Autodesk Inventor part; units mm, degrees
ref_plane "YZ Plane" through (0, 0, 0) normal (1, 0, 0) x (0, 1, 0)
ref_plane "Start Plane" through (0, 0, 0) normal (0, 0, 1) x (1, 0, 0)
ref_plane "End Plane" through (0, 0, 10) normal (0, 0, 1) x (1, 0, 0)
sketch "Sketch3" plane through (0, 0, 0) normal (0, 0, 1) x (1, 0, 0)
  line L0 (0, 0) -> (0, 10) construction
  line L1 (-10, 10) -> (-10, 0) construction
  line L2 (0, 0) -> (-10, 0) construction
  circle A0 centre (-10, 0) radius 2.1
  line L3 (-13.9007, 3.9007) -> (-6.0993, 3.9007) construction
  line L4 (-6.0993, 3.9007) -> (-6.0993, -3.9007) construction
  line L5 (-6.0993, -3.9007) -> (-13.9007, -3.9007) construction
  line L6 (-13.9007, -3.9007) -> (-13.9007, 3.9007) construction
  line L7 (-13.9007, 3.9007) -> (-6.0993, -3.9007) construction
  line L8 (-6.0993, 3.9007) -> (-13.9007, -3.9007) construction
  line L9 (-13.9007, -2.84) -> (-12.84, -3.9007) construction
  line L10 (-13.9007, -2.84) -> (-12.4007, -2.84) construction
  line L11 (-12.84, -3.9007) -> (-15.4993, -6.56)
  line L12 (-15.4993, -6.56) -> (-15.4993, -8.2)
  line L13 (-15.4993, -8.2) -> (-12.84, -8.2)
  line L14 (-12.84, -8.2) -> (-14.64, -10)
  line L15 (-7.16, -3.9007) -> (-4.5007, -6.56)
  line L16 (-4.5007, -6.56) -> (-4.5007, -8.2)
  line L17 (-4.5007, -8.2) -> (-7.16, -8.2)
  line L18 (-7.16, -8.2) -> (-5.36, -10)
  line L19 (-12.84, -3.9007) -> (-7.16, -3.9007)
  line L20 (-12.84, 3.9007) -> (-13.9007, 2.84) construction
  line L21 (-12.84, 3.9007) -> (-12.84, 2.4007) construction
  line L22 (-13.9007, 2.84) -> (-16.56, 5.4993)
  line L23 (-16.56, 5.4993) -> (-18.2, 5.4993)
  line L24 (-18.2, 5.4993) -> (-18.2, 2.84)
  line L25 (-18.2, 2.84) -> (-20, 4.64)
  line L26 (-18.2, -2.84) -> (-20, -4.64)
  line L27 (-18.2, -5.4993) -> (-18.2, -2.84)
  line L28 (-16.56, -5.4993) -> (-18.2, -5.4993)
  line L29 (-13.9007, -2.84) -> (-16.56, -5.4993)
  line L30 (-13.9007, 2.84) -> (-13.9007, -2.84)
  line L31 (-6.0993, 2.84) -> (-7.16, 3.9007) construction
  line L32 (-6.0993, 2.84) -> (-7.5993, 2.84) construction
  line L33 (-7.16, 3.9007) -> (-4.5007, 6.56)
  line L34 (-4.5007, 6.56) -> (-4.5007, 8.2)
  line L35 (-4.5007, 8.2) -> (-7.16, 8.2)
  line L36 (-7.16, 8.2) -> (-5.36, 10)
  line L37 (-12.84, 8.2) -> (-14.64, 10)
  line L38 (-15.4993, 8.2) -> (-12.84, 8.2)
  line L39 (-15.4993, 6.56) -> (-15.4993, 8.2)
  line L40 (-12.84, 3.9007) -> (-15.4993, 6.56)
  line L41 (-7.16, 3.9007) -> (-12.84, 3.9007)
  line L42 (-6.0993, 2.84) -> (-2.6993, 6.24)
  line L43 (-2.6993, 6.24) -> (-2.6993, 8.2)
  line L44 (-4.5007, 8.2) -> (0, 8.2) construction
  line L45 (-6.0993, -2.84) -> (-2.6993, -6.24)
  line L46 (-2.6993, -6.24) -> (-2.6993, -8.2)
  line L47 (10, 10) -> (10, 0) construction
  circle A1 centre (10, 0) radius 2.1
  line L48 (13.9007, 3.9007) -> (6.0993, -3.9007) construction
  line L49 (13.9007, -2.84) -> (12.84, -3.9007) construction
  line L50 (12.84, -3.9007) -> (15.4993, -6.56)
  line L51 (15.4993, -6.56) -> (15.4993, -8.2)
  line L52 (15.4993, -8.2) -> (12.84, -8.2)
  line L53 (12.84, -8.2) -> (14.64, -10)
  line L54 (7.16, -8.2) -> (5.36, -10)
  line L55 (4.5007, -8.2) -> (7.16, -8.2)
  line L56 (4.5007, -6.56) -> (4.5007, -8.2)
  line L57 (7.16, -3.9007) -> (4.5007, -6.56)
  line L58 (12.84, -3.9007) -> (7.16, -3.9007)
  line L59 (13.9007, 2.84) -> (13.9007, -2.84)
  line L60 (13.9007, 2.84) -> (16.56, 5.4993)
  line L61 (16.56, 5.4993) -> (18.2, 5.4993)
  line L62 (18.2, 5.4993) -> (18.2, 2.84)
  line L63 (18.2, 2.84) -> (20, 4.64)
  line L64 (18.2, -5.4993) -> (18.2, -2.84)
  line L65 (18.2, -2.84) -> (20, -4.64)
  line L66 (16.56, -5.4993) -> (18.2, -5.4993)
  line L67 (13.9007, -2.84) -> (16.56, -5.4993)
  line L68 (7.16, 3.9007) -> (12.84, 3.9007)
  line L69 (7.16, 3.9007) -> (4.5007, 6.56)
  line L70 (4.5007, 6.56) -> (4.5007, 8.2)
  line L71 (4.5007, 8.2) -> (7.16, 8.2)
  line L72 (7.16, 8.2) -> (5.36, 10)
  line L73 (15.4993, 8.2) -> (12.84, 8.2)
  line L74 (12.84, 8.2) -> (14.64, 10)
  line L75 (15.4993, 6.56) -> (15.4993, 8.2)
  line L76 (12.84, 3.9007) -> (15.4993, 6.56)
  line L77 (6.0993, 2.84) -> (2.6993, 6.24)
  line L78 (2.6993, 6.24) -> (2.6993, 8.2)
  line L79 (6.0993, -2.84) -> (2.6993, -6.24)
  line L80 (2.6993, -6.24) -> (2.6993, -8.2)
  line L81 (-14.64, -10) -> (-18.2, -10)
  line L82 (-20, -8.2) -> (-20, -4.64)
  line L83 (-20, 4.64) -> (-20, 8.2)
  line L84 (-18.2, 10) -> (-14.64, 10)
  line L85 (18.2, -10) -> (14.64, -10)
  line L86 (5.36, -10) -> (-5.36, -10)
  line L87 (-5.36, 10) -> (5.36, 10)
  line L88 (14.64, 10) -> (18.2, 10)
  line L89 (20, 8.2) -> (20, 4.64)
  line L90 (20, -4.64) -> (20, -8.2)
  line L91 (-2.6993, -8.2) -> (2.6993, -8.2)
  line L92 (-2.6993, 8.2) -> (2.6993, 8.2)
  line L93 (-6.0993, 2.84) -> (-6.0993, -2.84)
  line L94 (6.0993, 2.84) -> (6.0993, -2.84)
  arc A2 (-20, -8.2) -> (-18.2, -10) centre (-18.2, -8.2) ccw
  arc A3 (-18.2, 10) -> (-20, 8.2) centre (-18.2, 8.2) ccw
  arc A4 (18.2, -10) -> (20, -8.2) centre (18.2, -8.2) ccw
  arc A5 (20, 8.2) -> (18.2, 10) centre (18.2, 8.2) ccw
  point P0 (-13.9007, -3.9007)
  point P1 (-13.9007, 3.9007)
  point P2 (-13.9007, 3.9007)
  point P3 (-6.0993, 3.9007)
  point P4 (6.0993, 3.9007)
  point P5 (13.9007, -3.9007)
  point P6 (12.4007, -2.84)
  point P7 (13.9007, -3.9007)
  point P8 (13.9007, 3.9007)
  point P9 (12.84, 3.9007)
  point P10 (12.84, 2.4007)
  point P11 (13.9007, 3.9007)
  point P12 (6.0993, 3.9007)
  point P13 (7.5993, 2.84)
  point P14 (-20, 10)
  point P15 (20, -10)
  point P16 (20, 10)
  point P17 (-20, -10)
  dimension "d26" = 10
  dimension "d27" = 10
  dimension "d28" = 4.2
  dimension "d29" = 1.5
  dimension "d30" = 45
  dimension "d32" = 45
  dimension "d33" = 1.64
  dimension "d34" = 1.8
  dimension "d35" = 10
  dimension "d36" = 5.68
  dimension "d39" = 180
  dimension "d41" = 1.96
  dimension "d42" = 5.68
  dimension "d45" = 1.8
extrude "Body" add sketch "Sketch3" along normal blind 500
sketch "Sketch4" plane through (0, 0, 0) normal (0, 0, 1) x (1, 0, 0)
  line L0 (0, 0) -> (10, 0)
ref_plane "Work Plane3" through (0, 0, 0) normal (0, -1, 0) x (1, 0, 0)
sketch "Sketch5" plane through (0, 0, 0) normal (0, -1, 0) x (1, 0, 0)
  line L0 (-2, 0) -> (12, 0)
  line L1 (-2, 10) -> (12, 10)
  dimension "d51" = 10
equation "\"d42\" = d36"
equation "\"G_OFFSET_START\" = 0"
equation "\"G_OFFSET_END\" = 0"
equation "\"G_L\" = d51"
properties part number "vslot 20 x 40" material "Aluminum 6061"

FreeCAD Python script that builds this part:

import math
import FreeCAD as App
import Part
import Sketcher
Q = App.Units.Quantity

doc = App.newDocument("Part")
body = doc.addObject("PartDesign::Body", "Body")

# Sketch on XY plane
sketch1 = body.newObject("Sketcher::SketchObject", "Sketch")
sketch1.AttachmentSupport = (doc.getObject("XY_Plane"), [""])
sketch1.MapMode = "FlatFace"
sketch1.addGeometry(Part.LineSegment(App.Vector(-15.5, -6.6, 0), App.Vector(-12.8, -3.9, 0)), False)
sketch1.addGeometry(Part.LineSegment(App.Vector(-12.8, -3.9, 0), App.Vector(-7.2, -3.9, 0)), False)
sketch1.addGeometry(Part.LineSegment(App.Vector(-7.2, -3.9, 0), App.Vector(-4.5, -6.6, 0)), False)
sketch1.addGeometry(Part.LineSegment(App.Vector(-4.5, -6.6, 0), App.Vector(-4.5, -8.2, 0)), False)
sketch1.addGeometry(Part.LineSegment(App.Vector(-4.5, -8.2, 0), App.Vector(-7.2, -8.2, 0)), False)
sketch1.addGeometry(Part.LineSegment(App.Vector(-7.2, -8.2, 0), App.Vector(-5.4, -10, 0)), False)
sketch1.addGeometry(Part.LineSegment(App.Vector(-5.4, -10, 0), App.Vector(5.4, -10, 0)), False)
sketch1.addGeometry(Part.LineSegment(App.Vector(5.4, -10, 0), App.Vector(7.2, -8.2, 0)), False)
sketch1.addGeometry(Part.LineSegment(App.Vector(7.2, -8.2, 0), App.Vector(4.5, -8.2, 0)), False)
sketch1.addGeometry(Part.LineSegment(App.Vector(4.5, -8.2, 0), App.Vector(4.5, -6.6, 0)), False)
sketch1.addGeometry(Part.LineSegment(App.Vector(4.5, -6.6, 0), App.Vector(7.2, -3.9, 0)), False)
sketch1.addGeometry(Part.LineSegment(App.Vector(7.2, -3.9, 0), App.Vector(12.8, -3.9, 0)), False)
sketch1.addGeometry(Part.LineSegment(App.Vector(12.8, -3.9, 0), App.Vector(15.5, -6.6, 0)), False)
sketch1.addGeometry(Part.LineSegment(App.Vector(15.5, -6.6, 0), App.Vector(15.5, -8.2, 0)), False)
sketch1.addGeometry(Part.LineSegment(App.Vector(15.5, -8.2, 0), App.Vector(12.8, -8.2, 0)), False)
sketch1.addGeometry(Part.LineSegment(App.Vector(12.8, -8.2, 0), App.Vector(14.6, -10, 0)), False)
sketch1.addGeometry(Part.LineSegment(App.Vector(14.6, -10, 0), App.Vector(18.2, -10, 0)), False)
sketch1.addGeometry(Part.ArcOfCircle(Part.Circle(App.Vector(18.2, -8.2, 0), App.Vector(0, 0, 1), 1.8), math.radians(-90), math.radians(0)), False)
sketch1.addGeometry(Part.LineSegment(App.Vector(20, -8.2, 0), App.Vector(20, -4.6, 0)), False)
sketch1.addGeometry(Part.LineSegment(App.Vector(20, -4.6, 0), App.Vector(18.2, -2.8, 0)), False)
sketch1.addGeometry(Part.LineSegment(App.Vector(18.2, -2.8, 0), App.Vector(18.2, -5.5, 0)), False)
sketch1.addGeometry(Part.LineSegment(App.Vector(18.2, -5.5, 0), App.Vector(16.6, -5.5, 0)), False)
sketch1.addGeometry(Part.LineSegment(App.Vector(16.6, -5.5, 0), App.Vector(13.9, -2.8, 0)), False)
sketch1.addGeometry(Part.LineSegment(App.Vector(13.9, -2.8, 0), App.Vector(13.9, 2.8, 0)), False)
sketch1.addGeometry(Part.LineSegment(App.Vector(13.9, 2.8, 0), App.Vector(16.6, 5.5, 0)), False)
sketch1.addGeometry(Part.LineSegment(App.Vector(16.6, 5.5, 0), App.Vector(18.2, 5.5, 0)), False)
sketch1.addGeometry(Part.LineSegment(App.Vector(18.2, 5.5, 0), App.Vector(18.2, 2.8, 0)), False)
sketch1.addGeometry(Part.LineSegment(App.Vector(18.2, 2.8, 0), App.Vector(20, 4.6, 0)), False)
sketch1.addGeometry(Part.LineSegment(App.Vector(20, 4.6, 0), App.Vector(20, 8.2, 0)), False)
sketch1.addGeometry(Part.ArcOfCircle(Part.Circle(App.Vector(18.2, 8.2, 0), App.Vector(0, 0, 1), 1.8), math.radians(0), math.radians(90)), False)
sketch1.addGeometry(Part.LineSegment(App.Vector(18.2, 10, 0), App.Vector(14.6, 10, 0)), False)
sketch1.addGeometry(Part.LineSegment(App.Vector(14.6, 10, 0), App.Vector(12.8, 8.2, 0)), False)
sketch1.addGeometry(Part.LineSegment(App.Vector(12.8, 8.2, 0), App.Vector(15.5, 8.2, 0)), False)
sketch1.addGeometry(Part.LineSegment(App.Vector(15.5, 8.2, 0), App.Vector(15.5, 6.6, 0)), False)
sketch1.addGeometry(Part.LineSegment(App.Vector(15.5, 6.6, 0), App.Vector(12.8, 3.9, 0)), False)
sketch1.addGeometry(Part.LineSegment(App.Vector(12.8, 3.9, 0), App.Vector(7.2, 3.9, 0)), False)
sketch1.addGeometry(Part.LineSegment(App.Vector(7.2, 3.9, 0), App.Vector(4.5, 6.6, 0)), False)
sketch1.addGeometry(Part.LineSegment(App.Vector(4.5, 6.6, 0), App.Vector(4.5, 8.2, 0)), False)
sketch1.addGeometry(Part.LineSegment(App.Vector(4.5, 8.2, 0), App.Vector(7.2, 8.2, 0)), False)
sketch1.addGeometry(Part.LineSegment(App.Vector(7.2, 8.2, 0), App.Vector(5.4, 10, 0)), False)
sketch1.addGeometry(Part.LineSegment(App.Vector(5.4, 10, 0), App.Vector(-5.4, 10, 0)), False)
sketch1.addGeometry(Part.LineSegment(App.Vector(-5.4, 10, 0), App.Vector(-7.2, 8.2, 0)), False)
sketch1.addGeometry(Part.LineSegment(App.Vector(-7.2, 8.2, 0), App.Vector(-4.5, 8.2, 0)), False)
sketch1.addGeometry(Part.LineSegment(App.Vector(-4.5, 8.2, 0), App.Vector(-4.5, 6.6, 0)), False)
sketch1.addGeometry(Part.LineSegment(App.Vector(-4.5, 6.6, 0), App.Vector(-7.2, 3.9, 0)), False)
sketch1.addGeometry(Part.LineSegment(App.Vector(-7.2, 3.9, 0), App.Vector(-12.8, 3.9, 0)), False)
sketch1.addGeometry(Part.LineSegment(App.Vector(-12.8, 3.9, 0), App.Vector(-15.5, 6.6, 0)), False)
sketch1.addGeometry(Part.LineSegment(App.Vector(-15.5, 6.6, 0), App.Vector(-15.5, 8.2, 0)), False)
sketch1.addGeometry(Part.LineSegment(App.Vector(-15.5, 8.2, 0), App.Vector(-12.8, 8.2, 0)), False)
sketch1.addGeometry(Part.LineSegment(App.Vector(-12.8, 8.2, 0), App.Vector(-14.6, 10, 0)), False)
sketch1.addGeometry(Part.LineSegment(App.Vector(-14.6, 10, 0), App.Vector(-18.2, 10, 0)), False)
sketch1.addGeometry(Part.ArcOfCircle(Part.Circle(App.Vector(-18.2, 8.2, 0), App.Vector(0, 0, 1), 1.8), math.radians(90), math.radians(180)), False)
sketch1.addGeometry(Part.LineSegment(App.Vector(-20, 8.2, 0), App.Vector(-20, 4.6, 0)), False)
sketch1.addGeometry(Part.LineSegment(App.Vector(-20, 4.6, 0), App.Vector(-18.2, 2.8, 0)), False)
sketch1.addGeometry(Part.LineSegment(App.Vector(-18.2, 2.8, 0), App.Vector(-18.2, 5.5, 0)), False)
sketch1.addGeometry(Part.LineSegment(App.Vector(-18.2, 5.5, 0), App.Vector(-16.6, 5.5, 0)), False)
sketch1.addGeometry(Part.LineSegment(App.Vector(-16.6, 5.5, 0), App.Vector(-13.9, 2.8, 0)), False)
sketch1.addGeometry(Part.LineSegment(App.Vector(-13.9, 2.8, 0), App.Vector(-13.9, -2.8, 0)), False)
sketch1.addGeometry(Part.LineSegment(App.Vector(-13.9, -2.8, 0), App.Vector(-16.6, -5.5, 0)), False)
sketch1.addGeometry(Part.LineSegment(App.Vector(-16.6, -5.5, 0), App.Vector(-18.2, -5.5, 0)), False)
sketch1.addGeometry(Part.LineSegment(App.Vector(-18.2, -5.5, 0), App.Vector(-18.2, -2.8, 0)), False)
sketch1.addGeometry(Part.LineSegment(App.Vector(-18.2, -2.8, 0), App.Vector(-20, -4.6, 0)), False)
sketch1.addGeometry(Part.LineSegment(App.Vector(-20, -4.6, 0), App.Vector(-20, -8.2, 0)), False)
sketch1.addGeometry(Part.ArcOfCircle(Part.Circle(App.Vector(-18.2, -8.2, 0), App.Vector(0, 0, 1), 1.8), math.radians(180), math.radians(270)), False)
sketch1.addGeometry(Part.LineSegment(App.Vector(-18.2, -10, 0), App.Vector(-14.6, -10, 0)), False)
sketch1.addGeometry(Part.LineSegment(App.Vector(-14.6, -10, 0), App.Vector(-12.8, -8.2, 0)), False)
sketch1.addGeometry(Part.LineSegment(App.Vector(-12.8, -8.2, 0), App.Vector(-15.5, -8.2, 0)), False)
sketch1.addGeometry(Part.LineSegment(App.Vector(-15.5, -8.2, 0), App.Vector(-15.5, -6.6, 0)), False)
sketch1.addGeometry(Part.Circle(App.Vector(-10, 0, 0), App.Vector(0, 0, 1), 2.1), False)
sketch1.addGeometry(Part.LineSegment(App.Vector(-6.1, -2.8, 0), App.Vector(-6.1, 2.8, 0)), False)
sketch1.addGeometry(Part.LineSegment(App.Vector(-6.1, 2.8, 0), App.Vector(-2.7, 6.2, 0)), False)
sketch1.addGeometry(Part.LineSegment(App.Vector(-2.7, 6.2, 0), App.Vector(-2.7, 8.2, 0)), False)
sketch1.addGeometry(Part.LineSegment(App.Vector(-2.7, 8.2, 0), App.Vector(2.7, 8.2, 0)), False)
sketch1.addGeometry(Part.LineSegment(App.Vector(2.7, 8.2, 0), App.Vector(2.7, 6.2, 0)), False)
sketch1.addGeometry(Part.LineSegment(App.Vector(2.7, 6.2, 0), App.Vector(6.1, 2.8, 0)), False)
sketch1.addGeometry(Part.LineSegment(App.Vector(6.1, 2.8, 0), App.Vector(6.1, -2.8, 0)), False)
sketch1.addGeometry(Part.LineSegment(App.Vector(6.1, -2.8, 0), App.Vector(2.7, -6.2, 0)), False)
sketch1.addGeometry(Part.LineSegment(App.Vector(2.7, -6.2, 0), App.Vector(2.7, -8.2, 0)), False)
sketch1.addGeometry(Part.LineSegment(App.Vector(2.7, -8.2, 0), App.Vector(-2.7, -8.2, 0)), False)
sketch1.addGeometry(Part.LineSegment(App.Vector(-2.7, -8.2, 0), App.Vector(-2.7, -6.2, 0)), False)
sketch1.addGeometry(Part.LineSegment(App.Vector(-2.7, -6.2, 0), App.Vector(-6.1, -2.8, 0)), False)
sketch1.addGeometry(Part.Circle(App.Vector(10, 0, 0), App.Vector(0, 0, 1), 2.1), False)
sketch1.addConstraint(Sketcher.Constraint("Coincident", 0, 2, 1, 1))
sketch1.addConstraint(Sketcher.Constraint("Coincident", 1, 2, 2, 1))
sketch1.addConstraint(Sketcher.Constraint("Coincident", 2, 2, 3, 1))
sketch1.addConstraint(Sketcher.Constraint("Coincident", 3, 2, 4, 1))
sketch1.addConstraint(Sketcher.Constraint("Coincident", 4, 2, 5, 1))
sketch1.addConstraint(Sketcher.Constraint("Coincident", 5, 2, 6, 1))
sketch1.addConstraint(Sketcher.Constraint("Coincident", 6, 2, 7, 1))
sketch1.addConstraint(Sketcher.Constraint("Coincident", 7, 2, 8, 1))
sketch1.addConstraint(Sketcher.Constraint("Coincident", 8, 2, 9, 1))
sketch1.addConstraint(Sketcher.Constraint("Coincident", 9, 2, 10, 1))
sketch1.addConstraint(Sketcher.Constraint("Coincident", 10, 2, 11, 1))
sketch1.addConstraint(Sketcher.Constraint("Coincident", 11, 2, 12, 1))
sketch1.addConstraint(Sketcher.Constraint("Coincident", 12, 2, 13, 1))
sketch1.addConstraint(Sketcher.Constraint("Coincident", 13, 2, 14, 1))
sketch1.addConstraint(Sketcher.Constraint("Coincident", 14, 2, 15, 1))
sketch1.addConstraint(Sketcher.Constraint("Coincident", 15, 2, 16, 1))
sketch1.addConstraint(Sketcher.Constraint("Tangent", 16, 2, 17, 1))
sketch1.addConstraint(Sketcher.Constraint("Tangent", 17, 2, 18, 1))
sketch1.addConstraint(Sketcher.Constraint("Coincident", 18, 2, 19, 1))
sketch1.addConstraint(Sketcher.Constraint("Coincident", 19, 2, 20, 1))
sketch1.addConstraint(Sketcher.Constraint("Coincident", 20, 2, 21, 1))
sketch1.addConstraint(Sketcher.Constraint("Coincident", 21, 2, 22, 1))
sketch1.addConstraint(Sketcher.Constraint("Coincident", 22, 2, 23, 1))
sketch1.addConstraint(Sketcher.Constraint("Coincident", 23, 2, 24, 1))
sketch1.addConstraint(Sketcher.Constraint("Coincident", 24, 2, 25, 1))
sketch1.addConstraint(Sketcher.Constraint("Coincident", 25, 2, 26, 1))
sketch1.addConstraint(Sketcher.Constraint("Coincident", 26, 2, 27, 1))
sketch1.addConstraint(Sketcher.Constraint("Coincident", 27, 2, 28, 1))
sketch1.addConstraint(Sketcher.Constraint("Tangent", 28, 2, 29, 1))
sketch1.addConstraint(Sketcher.Constraint("Tangent", 29, 2, 30, 1))
sketch1.addConstraint(Sketcher.Constraint("Coincident", 30, 2, 31, 1))
sketch1.addConstraint(Sketcher.Constraint("Coincident", 31, 2, 32, 1))
sketch1.addConstraint(Sketcher.Constraint("Coincident", 32, 2, 33, 1))
sketch1.addConstraint(Sketcher.Constraint("Coincident", 33, 2, 34, 1))
sketch1.addConstraint(Sketcher.Constraint("Coincident", 34, 2, 35, 1))
sketch1.addConstraint(Sketcher.Constraint("Coincident", 35, 2, 36, 1))
sketch1.addConstraint(Sketcher.Constraint("Coincident", 36, 2, 37, 1))
sketch1.addConstraint(Sketcher.Constraint("Coincident", 37, 2, 38, 1))
sketch1.addConstraint(Sketcher.Constraint("Coincident", 38, 2, 39, 1))
sketch1.addConstraint(Sketcher.Constraint("Coincident", 39, 2, 40, 1))
sketch1.addConstraint(Sketcher.Constraint("Coincident", 40, 2, 41, 1))
sketch1.addConstraint(Sketcher.Constraint("Coincident", 41, 2, 42, 1))
sketch1.addConstraint(Sketcher.Constraint("Coincident", 42, 2, 43, 1))
sketch1.addConstraint(Sketcher.Constraint("Coincident", 43, 2, 44, 1))
sketch1.addConstraint(Sketcher.Constraint("Coincident", 44, 2, 45, 1))
sketch1.addConstraint(Sketcher.Constraint("Coincident", 45, 2, 46, 1))
sketch1.addConstraint(Sketcher.Constraint("Coincident", 46, 2, 47, 1))
sketch1.addConstraint(Sketcher.Constraint("Coincident", 47, 2, 48, 1))
sketch1.addConstraint(Sketcher.Constraint("Coincident", 48, 2, 49, 1))
sketch1.addConstraint(Sketcher.Constraint("Coincident", 49, 2, 50, 1))
sketch1.addConstraint(Sketcher.Constraint("Tangent", 50, 2, 51, 1))
sketch1.addConstraint(Sketcher.Constraint("Tangent", 51, 2, 52, 1))
sketch1.addConstraint(Sketcher.Constraint("Coincident", 52, 2, 53, 1))
sketch1.addConstraint(Sketcher.Constraint("Coincident", 53, 2, 54, 1))
sketch1.addConstraint(Sketcher.Constraint("Coincident", 54, 2, 55, 1))
sketch1.addConstraint(Sketcher.Constraint("Coincident", 55, 2, 56, 1))
sketch1.addConstraint(Sketcher.Constraint("Coincident", 56, 2, 57, 1))
sketch1.addConstraint(Sketcher.Constraint("Coincident", 57, 2, 58, 1))
sketch1.addConstraint(Sketcher.Constraint("Coincident", 58, 2, 59, 1))
sketch1.addConstraint(Sketcher.Constraint("Coincident", 59, 2, 60, 1))
sketch1.addConstraint(Sketcher.Constraint("Coincident", 60, 2, 61, 1))
sketch1.addConstraint(Sketcher.Constraint("Coincident", 61, 2, 62, 1))
sketch1.addConstraint(Sketcher.Constraint("Tangent", 62, 2, 63, 1))
sketch1.addConstraint(Sketcher.Constraint("Tangent", 63, 2, 64, 1))
sketch1.addConstraint(Sketcher.Constraint("Coincident", 64, 2, 65, 1))
sketch1.addConstraint(Sketcher.Constraint("Coincident", 65, 2, 66, 1))
sketch1.addConstraint(Sketcher.Constraint("Coincident", 66, 2, 67, 1))
sketch1.addConstraint(Sketcher.Constraint("Coincident", 67, 2, 0, 1))
sketch1.addConstraint(Sketcher.Constraint("Coincident", 69, 2, 70, 1))
sketch1.addConstraint(Sketcher.Constraint("Coincident", 70, 2, 71, 1))
sketch1.addConstraint(Sketcher.Constraint("Coincident", 71, 2, 72, 1))
sketch1.addConstraint(Sketcher.Constraint("Coincident", 72, 2, 73, 1))
sketch1.addConstraint(Sketcher.Constraint("Coincident", 73, 2, 74, 1))
sketch1.addConstraint(Sketcher.Constraint("Coincident", 74, 2, 75, 1))
sketch1.addConstraint(Sketcher.Constraint("Coincident", 75, 2, 76, 1))
sketch1.addConstraint(Sketcher.Constraint("Coincident", 76, 2, 77, 1))
sketch1.addConstraint(Sketcher.Constraint("Coincident", 77, 2, 78, 1))
sketch1.addConstraint(Sketcher.Constraint("Coincident", 78, 2, 79, 1))
sketch1.addConstraint(Sketcher.Constraint("Coincident", 79, 2, 80, 1))
sketch1.addConstraint(Sketcher.Constraint("Coincident", 80, 2, 69, 1))
sketch1.addConstraint(Sketcher.Constraint("Horizontal", 1))
sketch1.addConstraint(Sketcher.Constraint("Vertical", 3))
sketch1.addConstraint(Sketcher.Constraint("Horizontal", 4))
sketch1.addConstraint(Sketcher.Constraint("Horizontal", 6))
sketch1.addConstraint(Sketcher.Constraint("Horizontal", 8))
sketch1.addConstraint(Sketcher.Constraint("Vertical", 9))
sketch1.addConstraint(Sketcher.Constraint("Horizontal", 11))
sketch1.addConstraint(Sketcher.Constraint("Vertical", 13))
sketch1.addConstraint(Sketcher.Constraint("Horizontal", 14))
sketch1.addConstraint(Sketcher.Constraint("Horizontal", 16))
sketch1.addConstraint(Sketcher.Constraint("Vertical", 18))
sketch1.addConstraint(Sketcher.Constraint("Vertical", 20))
sketch1.addConstraint(Sketcher.Constraint("Horizontal", 21))
sketch1.addConstraint(Sketcher.Constraint("Vertical", 23))
sketch1.addConstraint(Sketcher.Constraint("Horizontal", 25))
sketch1.addConstraint(Sketcher.Constraint("Vertical", 26))
sketch1.addConstraint(Sketcher.Constraint("Vertical", 28))
sketch1.addConstraint(Sketcher.Constraint("Horizontal", 30))
sketch1.addConstraint(Sketcher.Constraint("Horizontal", 32))
sketch1.addConstraint(Sketcher.Constraint("Vertical", 33))
sketch1.addConstraint(Sketcher.Constraint("Horizontal", 35))
sketch1.addConstraint(Sketcher.Constraint("Vertical", 37))
sketch1.addConstraint(Sketcher.Constraint("Horizontal", 38))
sketch1.addConstraint(Sketcher.Constraint("Horizontal", 40))
sketch1.addConstraint(Sketcher.Constraint("Horizontal", 42))
sketch1.addConstraint(Sketcher.Constraint("Vertical", 43))
sketch1.addConstraint(Sketcher.Constraint("Horizontal", 45))
sketch1.addConstraint(Sketcher.Constraint("Vertical", 47))
sketch1.addConstraint(Sketcher.Constraint("Horizontal", 48))
sketch1.addConstraint(Sketcher.Constraint("Horizontal", 50))
sketch1.addConstraint(Sketcher.Constraint("Vertical", 52))
sketch1.addConstraint(Sketcher.Constraint("Vertical", 54))
sketch1.addConstraint(Sketcher.Constraint("Horizontal", 55))
sketch1.addConstraint(Sketcher.Constraint("Vertical", 57))
sketch1.addConstraint(Sketcher.Constraint("Horizontal", 59))
sketch1.addConstraint(Sketcher.Constraint("Vertical", 60))
sketch1.addConstraint(Sketcher.Constraint("Vertical", 62))
sketch1.addConstraint(Sketcher.Constraint("Horizontal", 64))
sketch1.addConstraint(Sketcher.Constraint("Horizontal", 66))
sketch1.addConstraint(Sketcher.Constraint("Vertical", 67))
sketch1.addConstraint(Sketcher.Constraint("Vertical", 69))
sketch1.addConstraint(Sketcher.Constraint("Vertical", 71))
sketch1.addConstraint(Sketcher.Constraint("Horizontal", 72))
sketch1.addConstraint(Sketcher.Constraint("Vertical", 73))
sketch1.addConstraint(Sketcher.Constraint("Vertical", 75))
sketch1.addConstraint(Sketcher.Constraint("Vertical", 77))
sketch1.addConstraint(Sketcher.Constraint("Horizontal", 78))
sketch1.addConstraint(Sketcher.Constraint("Vertical", 79))
sketch1.addConstraint(Sketcher.Constraint("Equal", 17, 29))
sketch1.addConstraint(Sketcher.Constraint("Equal", 29, 51))
sketch1.addConstraint(Sketcher.Constraint("Equal", 51, 63))
sketch1.addConstraint(Sketcher.Constraint("Equal", 68, 81))
sketch1.addConstraint(Sketcher.Constraint("Symmetric", 17, 3, 51, 3, -1, 1))
sketch1.addConstraint(Sketcher.Constraint("Symmetric", 29, 3, 63, 3, -1, 1))
sketch1.addConstraint(Sketcher.Constraint("Symmetric", 68, 3, 81, 3, -1, 1))
sketch1.addConstraint(Sketcher.Constraint("Symmetric", 0, 2, 34, 2, -1, 1))
sketch1.addConstraint(Sketcher.Constraint("Symmetric", 2, 2, 36, 2, -1, 1))
sketch1.addConstraint(Sketcher.Constraint("Symmetric", 4, 2, 38, 2, -1, 1))
sketch1.addConstraint(Sketcher.Constraint("Symmetric", 5, 2, 39, 2, -1, 1))
sketch1.addConstraint(Sketcher.Constraint("Symmetric", 7, 2, 41, 2, -1, 1))
sketch1.addConstraint(Sketcher.Constraint("Symmetric", 9, 2, 43, 2, -1, 1))
sketch1.addConstraint(Sketcher.Constraint("Symmetric", 10, 2, 44, 2, -1, 1))
sketch1.addConstraint(Sketcher.Constraint("Symmetric", 12, 2, 46, 2, -1, 1))
sketch1.addConstraint(Sketcher.Constraint("Symmetric", 14, 2, 48, 2, -1, 1))
sketch1.addConstraint(Sketcher.Constraint("Symmetric", 19, 2, 53, 2, -1, 1))
sketch1.addConstraint(Sketcher.Constraint("Symmetric", 21, 2, 55, 2, -1, 1))
sketch1.addConstraint(Sketcher.Constraint("Symmetric", 22, 2, 56, 2, -1, 1))
sketch1.addConstraint(Sketcher.Constraint("Symmetric", 24, 2, 58, 2, -1, 1))
sketch1.addConstraint(Sketcher.Constraint("Symmetric", 26, 2, 60, 2, -1, 1))
sketch1.addConstraint(Sketcher.Constraint("Symmetric", 31, 2, 65, 2, -1, 1))
sketch1.addConstraint(Sketcher.Constraint("Symmetric", 33, 2, 67, 2, -1, 1))
sketch1.addConstraint(Sketcher.Constraint("Symmetric", 69, 2, 75, 2, -1, 1))
sketch1.addConstraint(Sketcher.Constraint("Symmetric", 70, 2, 76, 2, -1, 1))
sketch1.addConstraint(Sketcher.Constraint("Symmetric", 72, 2, 78, 2, -1, 1))
sketch1.addConstraint(Sketcher.Constraint("Symmetric", 29, 3, 51, 3, -2))
sketch1.addConstraint(Sketcher.Constraint("Symmetric", 4, 2, 7, 2, -2))
sketch1.addConstraint(Sketcher.Constraint("Symmetric", 2, 2, 9, 2, -2))
sketch1.addConstraint(Sketcher.Constraint("Symmetric", 1, 2, 10, 2, -2))
sketch1.addConstraint(Sketcher.Constraint("Symmetric", 33, 2, 46, 2, -2))
sketch1.addConstraint(Sketcher.Constraint("Symmetric", 31, 2, 48, 2, -2))
sketch1.addConstraint(Sketcher.Constraint("Symmetric", 26, 2, 53, 2, -2))
sketch1.addConstraint(Sketcher.Constraint("Symmetric", 24, 2, 55, 2, -2))
sketch1.addConstraint(Sketcher.Constraint("Symmetric", 70, 2, 73, 2, -2))
sketch1.addConstraint(Sketcher.Constraint("PointOnObject", 68, 3, -1))
sketch1.addConstraint(Sketcher.Constraint("Perpendicular", 0, 2))
sketch1.addConstraint(Sketcher.Constraint("Parallel", 2, 5))
sketch1.addConstraint(Sketcher.Constraint("Perpendicular", 5, 7))
sketch1.addConstraint(Sketcher.Constraint("Parallel", 7, 10))
sketch1.addConstraint(Sketcher.Constraint("Perpendicular", 10, 12))
sketch1.addConstraint(Sketcher.Constraint("Parallel", 12, 15))
sketch1.addConstraint(Sketcher.Constraint("Parallel", 15, 19))
sketch1.addConstraint(Sketcher.Constraint("Parallel", 19, 22))
sketch1.addConstraint(Sketcher.Constraint("Perpendicular", 22, 24))
sketch1.addConstraint(Sketcher.Constraint("Parallel", 24, 27))
sketch1.addConstraint(Sketcher.Constraint("Parallel", 27, 31))
sketch1.addConstraint(Sketcher.Constraint("Perpendicular", 34, 36))
sketch1.addConstraint(Sketcher.Constraint("Perpendicular", 39, 41))
sketch1.addConstraint(Sketcher.Constraint("Perpendicular", 44, 46))
sketch1.addConstraint(Sketcher.Constraint("Parallel", 46, 49))
sketch1.addConstraint(Sketcher.Constraint("Parallel", 49, 53))
sketch1.addConstraint(Sketcher.Constraint("Perpendicular", 56, 58))
sketch1.addConstraint(Sketcher.Constraint("Parallel", 58, 61))
sketch1.addConstraint(Sketcher.Constraint("Parallel", 61, 65))
sketch1.addConstraint(Sketcher.Constraint("Parallel", 65, 70))
sketch1.addConstraint(Sketcher.Constraint("Perpendicular", 70, 74))
sketch1.addConstraint(Sketcher.Constraint("Perpendicular", 76, 80))
sketch1.addConstraint(Sketcher.Constraint("Horizontal", 63, 3, 3, 2))
sketch1.addConstraint(Sketcher.Constraint("Horizontal", 9, 2, 12, 2))
sketch1.addConstraint(Sketcher.Constraint("Horizontal", 8, 2, 13, 2))
sketch1.addConstraint(Sketcher.Constraint("Horizontal", 6, 2, 15, 2))
sketch1.addConstraint(Sketcher.Constraint("Horizontal", 19, 2, 22, 2))
sketch1.addConstraint(Sketcher.Constraint("Horizontal", 56, 2, 69, 2))
sketch1.addConstraint(Sketcher.Constraint("Horizontal", 51, 2, 71, 2))
sketch1.addConstraint(Sketcher.Constraint("Horizontal", 76, 2, 79, 2))
sketch1.addConstraint(Sketcher.Constraint("Vertical", 1, 2, 4, 2))
sketch1.addConstraint(Sketcher.Constraint("Vertical", 11, 2, 14, 2))
sketch1.addConstraint(Sketcher.Constraint("Vertical", 16, 2, 19, 2))
sketch1.addConstraint(Sketcher.Constraint("Equal", 59, 3))
sketch1.addConstraint(Sketcher.Constraint("Equal", 64, 18))
sketch1.addConstraint(Sketcher.Constraint("Equal", 66, 20))
sketch1.addConstraint(Sketcher.Constraint("Equal", 45, 23))
sketch1.addConstraint(Sketcher.Constraint("Diameter", 68, Q("4.2 mm")))
sketch1.addConstraint(Sketcher.Constraint("Radius", 17, Q("1.8 mm")))
sketch1.addConstraint(Sketcher.Constraint("DistanceX", 68, 3, -1, 1, Q("10 mm")))
sketch1.addConstraint(Sketcher.Constraint("DistanceY", 5, 2, -1, 1, Q("10 mm")))
sketch1.addConstraint(Sketcher.Constraint("DistanceX", 1, 1, 1, 2, Q("5.68 mm")))
sketch1.addConstraint(Sketcher.Constraint("DistanceX", 21, 2, 21, 1, Q("1.64 mm")))
sketch1.addConstraint(Sketcher.Constraint("DistanceY", 71, 1, 71, 2, Q("1.96 mm")))
sketch1.addConstraint(Sketcher.Constraint("DistanceX", -1, 1, 17, 2, Q("20 mm")))
sketch1.addConstraint(Sketcher.Constraint("DistanceX", 4, 2, 4, 1, Q("2.6593 mm")))
sketch1.addConstraint(Sketcher.Constraint("DistanceX", 72, 1, 72, 2, Q("5.3986 mm")))
pad1 = body.newObject("PartDesign::Pad", "Pad")
pad1.Profile = sketch1
pad1.Length = 500

doc.recompute()
